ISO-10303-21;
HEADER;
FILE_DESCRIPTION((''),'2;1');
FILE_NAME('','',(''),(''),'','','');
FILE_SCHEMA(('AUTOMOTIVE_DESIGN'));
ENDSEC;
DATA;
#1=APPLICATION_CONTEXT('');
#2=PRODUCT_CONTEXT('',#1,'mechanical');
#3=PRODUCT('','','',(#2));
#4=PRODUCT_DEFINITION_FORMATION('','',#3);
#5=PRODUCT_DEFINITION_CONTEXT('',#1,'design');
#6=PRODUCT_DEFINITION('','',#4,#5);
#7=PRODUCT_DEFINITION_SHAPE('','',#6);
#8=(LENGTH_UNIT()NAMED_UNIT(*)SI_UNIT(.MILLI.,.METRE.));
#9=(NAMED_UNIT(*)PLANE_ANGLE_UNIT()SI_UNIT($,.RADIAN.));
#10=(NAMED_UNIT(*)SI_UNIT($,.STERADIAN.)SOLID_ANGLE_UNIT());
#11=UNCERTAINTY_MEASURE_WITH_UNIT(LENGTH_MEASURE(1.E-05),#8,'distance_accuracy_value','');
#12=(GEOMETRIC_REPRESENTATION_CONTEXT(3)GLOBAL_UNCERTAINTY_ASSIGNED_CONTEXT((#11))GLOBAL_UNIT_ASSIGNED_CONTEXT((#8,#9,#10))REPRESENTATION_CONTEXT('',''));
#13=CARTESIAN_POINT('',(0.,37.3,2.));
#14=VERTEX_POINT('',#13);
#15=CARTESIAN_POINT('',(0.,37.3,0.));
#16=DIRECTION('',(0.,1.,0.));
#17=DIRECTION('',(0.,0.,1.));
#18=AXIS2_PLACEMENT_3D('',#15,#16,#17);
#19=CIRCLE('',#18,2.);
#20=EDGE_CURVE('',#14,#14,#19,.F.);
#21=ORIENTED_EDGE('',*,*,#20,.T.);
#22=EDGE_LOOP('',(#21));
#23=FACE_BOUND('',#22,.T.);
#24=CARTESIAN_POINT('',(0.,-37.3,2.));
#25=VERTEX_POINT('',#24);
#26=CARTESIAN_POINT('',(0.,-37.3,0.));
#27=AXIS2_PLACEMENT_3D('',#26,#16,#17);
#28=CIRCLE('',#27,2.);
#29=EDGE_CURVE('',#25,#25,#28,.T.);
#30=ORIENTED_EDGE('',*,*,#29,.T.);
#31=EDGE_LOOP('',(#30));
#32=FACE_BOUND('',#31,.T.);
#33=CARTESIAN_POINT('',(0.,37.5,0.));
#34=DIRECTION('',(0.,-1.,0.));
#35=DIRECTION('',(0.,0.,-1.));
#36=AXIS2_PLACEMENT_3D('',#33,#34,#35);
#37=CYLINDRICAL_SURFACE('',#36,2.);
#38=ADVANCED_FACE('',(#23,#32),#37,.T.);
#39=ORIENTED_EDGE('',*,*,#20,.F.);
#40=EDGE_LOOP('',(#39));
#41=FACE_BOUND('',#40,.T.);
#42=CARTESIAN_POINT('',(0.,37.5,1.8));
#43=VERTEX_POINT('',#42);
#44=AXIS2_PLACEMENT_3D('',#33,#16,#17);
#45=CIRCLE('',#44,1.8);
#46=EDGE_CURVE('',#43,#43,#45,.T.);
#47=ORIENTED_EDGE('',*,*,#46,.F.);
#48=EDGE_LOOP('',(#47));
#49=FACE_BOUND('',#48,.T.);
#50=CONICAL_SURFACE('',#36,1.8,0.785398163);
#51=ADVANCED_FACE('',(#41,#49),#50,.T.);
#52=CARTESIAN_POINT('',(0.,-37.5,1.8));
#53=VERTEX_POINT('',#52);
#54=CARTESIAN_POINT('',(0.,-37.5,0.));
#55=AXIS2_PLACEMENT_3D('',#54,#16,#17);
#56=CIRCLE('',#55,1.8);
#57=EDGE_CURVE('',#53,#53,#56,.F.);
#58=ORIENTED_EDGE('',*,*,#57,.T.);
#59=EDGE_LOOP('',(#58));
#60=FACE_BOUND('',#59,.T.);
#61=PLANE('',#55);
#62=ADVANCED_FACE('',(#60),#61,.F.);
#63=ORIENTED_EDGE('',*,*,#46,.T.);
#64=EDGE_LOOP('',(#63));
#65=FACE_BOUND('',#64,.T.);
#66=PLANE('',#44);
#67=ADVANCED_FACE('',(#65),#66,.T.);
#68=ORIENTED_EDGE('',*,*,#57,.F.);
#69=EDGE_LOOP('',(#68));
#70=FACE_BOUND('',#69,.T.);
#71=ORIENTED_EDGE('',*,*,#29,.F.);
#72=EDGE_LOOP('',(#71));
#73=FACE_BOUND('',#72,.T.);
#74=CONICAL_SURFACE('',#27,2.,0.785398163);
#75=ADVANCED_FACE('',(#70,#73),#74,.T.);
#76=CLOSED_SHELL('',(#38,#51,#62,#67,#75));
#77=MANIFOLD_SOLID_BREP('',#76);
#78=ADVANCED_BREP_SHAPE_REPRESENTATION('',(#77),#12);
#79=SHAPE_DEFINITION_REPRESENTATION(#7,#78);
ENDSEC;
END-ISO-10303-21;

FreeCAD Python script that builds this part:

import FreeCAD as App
import Part
import Sketcher
from FreeCAD import Vector
Q = App.Units.Quantity


def edges_at(feature, points):
    """Names of the edges that pass closest to the given points."""
    edges = feature.Shape.Edges
    near = lambda p: min(range(len(edges)), key=lambda i: edges[i].distToShape(Part.Vertex(*p))[0])
    return sorted({f"Edge{near(p) + 1}" for p in points})

doc = App.newDocument("Part")
body = doc.addObject("PartDesign::Body", "Body")

# Sketch on XZ plane
sketch1 = body.newObject("Sketcher::SketchObject", "Sketch")
sketch1.AttachmentSupport = (doc.getObject("XZ_Plane"), [""])
sketch1.MapMode = "FlatFace"
sketch1.addGeometry(Part.Circle(Vector(0, 0, 0), Vector(0, 0, 1), 2), False)
sketch1.addConstraint([
    Sketcher.Constraint("Coincident", 0, 3, -1, 1),
    Sketcher.Constraint("Diameter", 0, Q("4 mm")),
])
pad1 = body.newObject("PartDesign::Pad", "Pad")
pad1.Profile = sketch1
pad1.Length = 75
pad1.Midplane = True
doc.recompute()

chamfer = body.newObject("PartDesign::Chamfer", "Chamfer")
chamfer.Base = (pad1, edges_at(pad1, [(-2, -37.5, 0), (-2, 37.5, 0)]))
chamfer.Size = 0.2

doc.recompute()
